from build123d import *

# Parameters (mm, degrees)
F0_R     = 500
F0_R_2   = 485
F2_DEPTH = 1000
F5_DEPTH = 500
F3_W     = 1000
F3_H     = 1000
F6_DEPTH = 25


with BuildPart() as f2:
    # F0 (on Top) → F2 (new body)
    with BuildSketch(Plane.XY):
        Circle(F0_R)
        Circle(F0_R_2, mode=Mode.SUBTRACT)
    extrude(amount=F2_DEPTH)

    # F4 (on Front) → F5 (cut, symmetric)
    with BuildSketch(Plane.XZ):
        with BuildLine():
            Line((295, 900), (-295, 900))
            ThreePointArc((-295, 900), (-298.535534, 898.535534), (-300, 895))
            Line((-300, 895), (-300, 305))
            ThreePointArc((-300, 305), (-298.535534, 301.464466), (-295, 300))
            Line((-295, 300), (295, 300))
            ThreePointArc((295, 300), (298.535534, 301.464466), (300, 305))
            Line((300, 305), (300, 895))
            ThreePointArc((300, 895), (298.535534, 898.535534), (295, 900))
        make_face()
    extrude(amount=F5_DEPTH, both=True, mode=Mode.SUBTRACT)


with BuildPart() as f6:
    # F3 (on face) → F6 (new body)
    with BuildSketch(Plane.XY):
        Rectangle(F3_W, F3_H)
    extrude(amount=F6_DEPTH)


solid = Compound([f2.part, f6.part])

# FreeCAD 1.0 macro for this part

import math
import FreeCAD as App
import Part
import Sketcher
from FreeCAD import Vector
Q = App.Units.Quantity


def add_polygon(sketch, points):
    """Adds a closed chain of lines whose ends are joined by coincident constraints."""
    first, n = sketch.GeometryCount, len(points)
    for a, b in zip(points, points[1:] + points[:1]):
        sketch.addGeometry(Part.LineSegment(App.Vector(*a, 0), App.Vector(*b, 0)), False)
    for i in range(n):
        sketch.addConstraint(Sketcher.Constraint("Coincident", first + i, 2, first + (i + 1) % n, 1))

doc = App.newDocument("Part")
body = doc.addObject("PartDesign::Body", "Body")

sketch1 = body.newObject("Sketcher::SketchObject", "Sketch")
sketch1.AttachmentSupport = (doc.getObject("XY_Plane"), [""])
sketch1.MapMode = "FlatFace"
sketch1.addGeometry(Part.Circle(Vector(0, 0, 0), Vector(0, 0, 1), 500), False)
sketch1.addGeometry(Part.Circle(Vector(0, 0, 0), Vector(0, 0, 1), 485), False)
sketch1.addConstraint(Sketcher.Constraint("Coincident", 0, 3, -1, 1))
sketch1.addConstraint(Sketcher.Constraint("Coincident", 1, 3, -1, 1))
sketch1.addConstraint(Sketcher.Constraint("Diameter", 0, Q("1000 mm")))
sketch1.addConstraint(Sketcher.Constraint("Diameter", 1, Q("970 mm")))
pad1 = body.newObject("PartDesign::Pad", "Pad")
pad1.Profile = sketch1
pad1.Length = 1000

sketch2 = body.newObject("Sketcher::SketchObject", "Sketch001")
sketch2.AttachmentSupport = (doc.getObject("XZ_Plane"), [""])
sketch2.MapMode = "FlatFace"
sketch2.addGeometry(Part.LineSegment(Vector(295, 900, 0), Vector(-295, 900, 0)), False)
sketch2.addGeometry(Part.ArcOfCircle(Part.Circle(Vector(-295, 895, 0), Vector(0, 0, 1), 5), math.radians(90), math.radians(180)), False)
sketch2.addGeometry(Part.LineSegment(Vector(-300, 895, 0), Vector(-300, 305, 0)), False)
sketch2.addGeometry(Part.ArcOfCircle(Part.Circle(Vector(-295, 305, 0), Vector(0, 0, 1), 5), math.radians(180), math.radians(270)), False)
sketch2.addGeometry(Part.LineSegment(Vector(-295, 300, 0), Vector(295, 300, 0)), False)
sketch2.addGeometry(Part.ArcOfCircle(Part.Circle(Vector(295, 305, 0), Vector(0, 0, 1), 5), math.radians(-90), math.radians(0)), False)
sketch2.addGeometry(Part.LineSegment(Vector(300, 305, 0), Vector(300, 895, 0)), False)
sketch2.addGeometry(Part.ArcOfCircle(Part.Circle(Vector(295, 895, 0), Vector(0, 0, 1), 5), math.radians(0), math.radians(90)), False)
sketch2.addConstraint(Sketcher.Constraint("Tangent", 0, 2, 1, 1))
sketch2.addConstraint(Sketcher.Constraint("Tangent", 1, 2, 2, 1))
sketch2.addConstraint(Sketcher.Constraint("Tangent", 2, 2, 3, 1))
sketch2.addConstraint(Sketcher.Constraint("Tangent", 3, 2, 4, 1))
sketch2.addConstraint(Sketcher.Constraint("Tangent", 4, 2, 5, 1))
sketch2.addConstraint(Sketcher.Constraint("Tangent", 5, 2, 6, 1))
sketch2.addConstraint(Sketcher.Constraint("Tangent", 6, 2, 7, 1))
sketch2.addConstraint(Sketcher.Constraint("Tangent", 7, 2, 0, 1))
sketch2.addConstraint(Sketcher.Constraint("Horizontal", 0))
sketch2.addConstraint(Sketcher.Constraint("Vertical", 2))
sketch2.addConstraint(Sketcher.Constraint("Horizontal", 4))
sketch2.addConstraint(Sketcher.Constraint("Vertical", 6))
sketch2.addConstraint(Sketcher.Constraint("Equal", 1, 3))
sketch2.addConstraint(Sketcher.Constraint("Equal", 3, 5))
sketch2.addConstraint(Sketcher.Constraint("Equal", 5, 7))
sketch2.addConstraint(Sketcher.Constraint("Equal", 4, 2))
sketch2.addConstraint(Sketcher.Constraint("Radius", 1, Q("5 mm")))
sketch2.addConstraint(Sketcher.Constraint("DistanceX", 0, 2, 0, 1, Q("590 mm")))
sketch2.addConstraint(Sketcher.Constraint("DistanceX", 1, 3, -1, 1, Q("295 mm")))
sketch2.addConstraint(Sketcher.Constraint("DistanceY", -1, 1, 1, 3, Q("895 mm")))
pocket1 = body.newObject("PartDesign::Pocket", "Pocket")
pocket1.Profile = sketch2
pocket1.Length = 1000
pocket1.Midplane = True
body2 = doc.addObject("PartDesign::Body", "Body001")

sketch3 = body2.newObject("Sketcher::SketchObject", "Sketch002")
sketch3.AttachmentSupport = (doc.getObject("XY_Plane001"), [""])
sketch3.MapMode = "FlatFace"
add_polygon(sketch3, [(-500, 500), (-500, -500), (500, -500), (500, 500)])
sketch3.addConstraint(Sketcher.Constraint("Vertical", 0))
sketch3.addConstraint(Sketcher.Constraint("Horizontal", 1))
sketch3.addConstraint(Sketcher.Constraint("Vertical", 2))
sketch3.addConstraint(Sketcher.Constraint("Horizontal", 3))
sketch3.addConstraint(Sketcher.Constraint("Symmetric", 0, 2, 2, 2, -1, 1))
sketch3.addConstraint(Sketcher.Constraint("Equal", 3, 0))
sketch3.addConstraint(Sketcher.Constraint("DistanceX", 1, 1, 1, 2, Q("1000 mm")))
pad2 = body2.newObject("PartDesign::Pad", "Pad001")
pad2.Profile = sketch3
pad2.Length = 25

doc.recompute()
